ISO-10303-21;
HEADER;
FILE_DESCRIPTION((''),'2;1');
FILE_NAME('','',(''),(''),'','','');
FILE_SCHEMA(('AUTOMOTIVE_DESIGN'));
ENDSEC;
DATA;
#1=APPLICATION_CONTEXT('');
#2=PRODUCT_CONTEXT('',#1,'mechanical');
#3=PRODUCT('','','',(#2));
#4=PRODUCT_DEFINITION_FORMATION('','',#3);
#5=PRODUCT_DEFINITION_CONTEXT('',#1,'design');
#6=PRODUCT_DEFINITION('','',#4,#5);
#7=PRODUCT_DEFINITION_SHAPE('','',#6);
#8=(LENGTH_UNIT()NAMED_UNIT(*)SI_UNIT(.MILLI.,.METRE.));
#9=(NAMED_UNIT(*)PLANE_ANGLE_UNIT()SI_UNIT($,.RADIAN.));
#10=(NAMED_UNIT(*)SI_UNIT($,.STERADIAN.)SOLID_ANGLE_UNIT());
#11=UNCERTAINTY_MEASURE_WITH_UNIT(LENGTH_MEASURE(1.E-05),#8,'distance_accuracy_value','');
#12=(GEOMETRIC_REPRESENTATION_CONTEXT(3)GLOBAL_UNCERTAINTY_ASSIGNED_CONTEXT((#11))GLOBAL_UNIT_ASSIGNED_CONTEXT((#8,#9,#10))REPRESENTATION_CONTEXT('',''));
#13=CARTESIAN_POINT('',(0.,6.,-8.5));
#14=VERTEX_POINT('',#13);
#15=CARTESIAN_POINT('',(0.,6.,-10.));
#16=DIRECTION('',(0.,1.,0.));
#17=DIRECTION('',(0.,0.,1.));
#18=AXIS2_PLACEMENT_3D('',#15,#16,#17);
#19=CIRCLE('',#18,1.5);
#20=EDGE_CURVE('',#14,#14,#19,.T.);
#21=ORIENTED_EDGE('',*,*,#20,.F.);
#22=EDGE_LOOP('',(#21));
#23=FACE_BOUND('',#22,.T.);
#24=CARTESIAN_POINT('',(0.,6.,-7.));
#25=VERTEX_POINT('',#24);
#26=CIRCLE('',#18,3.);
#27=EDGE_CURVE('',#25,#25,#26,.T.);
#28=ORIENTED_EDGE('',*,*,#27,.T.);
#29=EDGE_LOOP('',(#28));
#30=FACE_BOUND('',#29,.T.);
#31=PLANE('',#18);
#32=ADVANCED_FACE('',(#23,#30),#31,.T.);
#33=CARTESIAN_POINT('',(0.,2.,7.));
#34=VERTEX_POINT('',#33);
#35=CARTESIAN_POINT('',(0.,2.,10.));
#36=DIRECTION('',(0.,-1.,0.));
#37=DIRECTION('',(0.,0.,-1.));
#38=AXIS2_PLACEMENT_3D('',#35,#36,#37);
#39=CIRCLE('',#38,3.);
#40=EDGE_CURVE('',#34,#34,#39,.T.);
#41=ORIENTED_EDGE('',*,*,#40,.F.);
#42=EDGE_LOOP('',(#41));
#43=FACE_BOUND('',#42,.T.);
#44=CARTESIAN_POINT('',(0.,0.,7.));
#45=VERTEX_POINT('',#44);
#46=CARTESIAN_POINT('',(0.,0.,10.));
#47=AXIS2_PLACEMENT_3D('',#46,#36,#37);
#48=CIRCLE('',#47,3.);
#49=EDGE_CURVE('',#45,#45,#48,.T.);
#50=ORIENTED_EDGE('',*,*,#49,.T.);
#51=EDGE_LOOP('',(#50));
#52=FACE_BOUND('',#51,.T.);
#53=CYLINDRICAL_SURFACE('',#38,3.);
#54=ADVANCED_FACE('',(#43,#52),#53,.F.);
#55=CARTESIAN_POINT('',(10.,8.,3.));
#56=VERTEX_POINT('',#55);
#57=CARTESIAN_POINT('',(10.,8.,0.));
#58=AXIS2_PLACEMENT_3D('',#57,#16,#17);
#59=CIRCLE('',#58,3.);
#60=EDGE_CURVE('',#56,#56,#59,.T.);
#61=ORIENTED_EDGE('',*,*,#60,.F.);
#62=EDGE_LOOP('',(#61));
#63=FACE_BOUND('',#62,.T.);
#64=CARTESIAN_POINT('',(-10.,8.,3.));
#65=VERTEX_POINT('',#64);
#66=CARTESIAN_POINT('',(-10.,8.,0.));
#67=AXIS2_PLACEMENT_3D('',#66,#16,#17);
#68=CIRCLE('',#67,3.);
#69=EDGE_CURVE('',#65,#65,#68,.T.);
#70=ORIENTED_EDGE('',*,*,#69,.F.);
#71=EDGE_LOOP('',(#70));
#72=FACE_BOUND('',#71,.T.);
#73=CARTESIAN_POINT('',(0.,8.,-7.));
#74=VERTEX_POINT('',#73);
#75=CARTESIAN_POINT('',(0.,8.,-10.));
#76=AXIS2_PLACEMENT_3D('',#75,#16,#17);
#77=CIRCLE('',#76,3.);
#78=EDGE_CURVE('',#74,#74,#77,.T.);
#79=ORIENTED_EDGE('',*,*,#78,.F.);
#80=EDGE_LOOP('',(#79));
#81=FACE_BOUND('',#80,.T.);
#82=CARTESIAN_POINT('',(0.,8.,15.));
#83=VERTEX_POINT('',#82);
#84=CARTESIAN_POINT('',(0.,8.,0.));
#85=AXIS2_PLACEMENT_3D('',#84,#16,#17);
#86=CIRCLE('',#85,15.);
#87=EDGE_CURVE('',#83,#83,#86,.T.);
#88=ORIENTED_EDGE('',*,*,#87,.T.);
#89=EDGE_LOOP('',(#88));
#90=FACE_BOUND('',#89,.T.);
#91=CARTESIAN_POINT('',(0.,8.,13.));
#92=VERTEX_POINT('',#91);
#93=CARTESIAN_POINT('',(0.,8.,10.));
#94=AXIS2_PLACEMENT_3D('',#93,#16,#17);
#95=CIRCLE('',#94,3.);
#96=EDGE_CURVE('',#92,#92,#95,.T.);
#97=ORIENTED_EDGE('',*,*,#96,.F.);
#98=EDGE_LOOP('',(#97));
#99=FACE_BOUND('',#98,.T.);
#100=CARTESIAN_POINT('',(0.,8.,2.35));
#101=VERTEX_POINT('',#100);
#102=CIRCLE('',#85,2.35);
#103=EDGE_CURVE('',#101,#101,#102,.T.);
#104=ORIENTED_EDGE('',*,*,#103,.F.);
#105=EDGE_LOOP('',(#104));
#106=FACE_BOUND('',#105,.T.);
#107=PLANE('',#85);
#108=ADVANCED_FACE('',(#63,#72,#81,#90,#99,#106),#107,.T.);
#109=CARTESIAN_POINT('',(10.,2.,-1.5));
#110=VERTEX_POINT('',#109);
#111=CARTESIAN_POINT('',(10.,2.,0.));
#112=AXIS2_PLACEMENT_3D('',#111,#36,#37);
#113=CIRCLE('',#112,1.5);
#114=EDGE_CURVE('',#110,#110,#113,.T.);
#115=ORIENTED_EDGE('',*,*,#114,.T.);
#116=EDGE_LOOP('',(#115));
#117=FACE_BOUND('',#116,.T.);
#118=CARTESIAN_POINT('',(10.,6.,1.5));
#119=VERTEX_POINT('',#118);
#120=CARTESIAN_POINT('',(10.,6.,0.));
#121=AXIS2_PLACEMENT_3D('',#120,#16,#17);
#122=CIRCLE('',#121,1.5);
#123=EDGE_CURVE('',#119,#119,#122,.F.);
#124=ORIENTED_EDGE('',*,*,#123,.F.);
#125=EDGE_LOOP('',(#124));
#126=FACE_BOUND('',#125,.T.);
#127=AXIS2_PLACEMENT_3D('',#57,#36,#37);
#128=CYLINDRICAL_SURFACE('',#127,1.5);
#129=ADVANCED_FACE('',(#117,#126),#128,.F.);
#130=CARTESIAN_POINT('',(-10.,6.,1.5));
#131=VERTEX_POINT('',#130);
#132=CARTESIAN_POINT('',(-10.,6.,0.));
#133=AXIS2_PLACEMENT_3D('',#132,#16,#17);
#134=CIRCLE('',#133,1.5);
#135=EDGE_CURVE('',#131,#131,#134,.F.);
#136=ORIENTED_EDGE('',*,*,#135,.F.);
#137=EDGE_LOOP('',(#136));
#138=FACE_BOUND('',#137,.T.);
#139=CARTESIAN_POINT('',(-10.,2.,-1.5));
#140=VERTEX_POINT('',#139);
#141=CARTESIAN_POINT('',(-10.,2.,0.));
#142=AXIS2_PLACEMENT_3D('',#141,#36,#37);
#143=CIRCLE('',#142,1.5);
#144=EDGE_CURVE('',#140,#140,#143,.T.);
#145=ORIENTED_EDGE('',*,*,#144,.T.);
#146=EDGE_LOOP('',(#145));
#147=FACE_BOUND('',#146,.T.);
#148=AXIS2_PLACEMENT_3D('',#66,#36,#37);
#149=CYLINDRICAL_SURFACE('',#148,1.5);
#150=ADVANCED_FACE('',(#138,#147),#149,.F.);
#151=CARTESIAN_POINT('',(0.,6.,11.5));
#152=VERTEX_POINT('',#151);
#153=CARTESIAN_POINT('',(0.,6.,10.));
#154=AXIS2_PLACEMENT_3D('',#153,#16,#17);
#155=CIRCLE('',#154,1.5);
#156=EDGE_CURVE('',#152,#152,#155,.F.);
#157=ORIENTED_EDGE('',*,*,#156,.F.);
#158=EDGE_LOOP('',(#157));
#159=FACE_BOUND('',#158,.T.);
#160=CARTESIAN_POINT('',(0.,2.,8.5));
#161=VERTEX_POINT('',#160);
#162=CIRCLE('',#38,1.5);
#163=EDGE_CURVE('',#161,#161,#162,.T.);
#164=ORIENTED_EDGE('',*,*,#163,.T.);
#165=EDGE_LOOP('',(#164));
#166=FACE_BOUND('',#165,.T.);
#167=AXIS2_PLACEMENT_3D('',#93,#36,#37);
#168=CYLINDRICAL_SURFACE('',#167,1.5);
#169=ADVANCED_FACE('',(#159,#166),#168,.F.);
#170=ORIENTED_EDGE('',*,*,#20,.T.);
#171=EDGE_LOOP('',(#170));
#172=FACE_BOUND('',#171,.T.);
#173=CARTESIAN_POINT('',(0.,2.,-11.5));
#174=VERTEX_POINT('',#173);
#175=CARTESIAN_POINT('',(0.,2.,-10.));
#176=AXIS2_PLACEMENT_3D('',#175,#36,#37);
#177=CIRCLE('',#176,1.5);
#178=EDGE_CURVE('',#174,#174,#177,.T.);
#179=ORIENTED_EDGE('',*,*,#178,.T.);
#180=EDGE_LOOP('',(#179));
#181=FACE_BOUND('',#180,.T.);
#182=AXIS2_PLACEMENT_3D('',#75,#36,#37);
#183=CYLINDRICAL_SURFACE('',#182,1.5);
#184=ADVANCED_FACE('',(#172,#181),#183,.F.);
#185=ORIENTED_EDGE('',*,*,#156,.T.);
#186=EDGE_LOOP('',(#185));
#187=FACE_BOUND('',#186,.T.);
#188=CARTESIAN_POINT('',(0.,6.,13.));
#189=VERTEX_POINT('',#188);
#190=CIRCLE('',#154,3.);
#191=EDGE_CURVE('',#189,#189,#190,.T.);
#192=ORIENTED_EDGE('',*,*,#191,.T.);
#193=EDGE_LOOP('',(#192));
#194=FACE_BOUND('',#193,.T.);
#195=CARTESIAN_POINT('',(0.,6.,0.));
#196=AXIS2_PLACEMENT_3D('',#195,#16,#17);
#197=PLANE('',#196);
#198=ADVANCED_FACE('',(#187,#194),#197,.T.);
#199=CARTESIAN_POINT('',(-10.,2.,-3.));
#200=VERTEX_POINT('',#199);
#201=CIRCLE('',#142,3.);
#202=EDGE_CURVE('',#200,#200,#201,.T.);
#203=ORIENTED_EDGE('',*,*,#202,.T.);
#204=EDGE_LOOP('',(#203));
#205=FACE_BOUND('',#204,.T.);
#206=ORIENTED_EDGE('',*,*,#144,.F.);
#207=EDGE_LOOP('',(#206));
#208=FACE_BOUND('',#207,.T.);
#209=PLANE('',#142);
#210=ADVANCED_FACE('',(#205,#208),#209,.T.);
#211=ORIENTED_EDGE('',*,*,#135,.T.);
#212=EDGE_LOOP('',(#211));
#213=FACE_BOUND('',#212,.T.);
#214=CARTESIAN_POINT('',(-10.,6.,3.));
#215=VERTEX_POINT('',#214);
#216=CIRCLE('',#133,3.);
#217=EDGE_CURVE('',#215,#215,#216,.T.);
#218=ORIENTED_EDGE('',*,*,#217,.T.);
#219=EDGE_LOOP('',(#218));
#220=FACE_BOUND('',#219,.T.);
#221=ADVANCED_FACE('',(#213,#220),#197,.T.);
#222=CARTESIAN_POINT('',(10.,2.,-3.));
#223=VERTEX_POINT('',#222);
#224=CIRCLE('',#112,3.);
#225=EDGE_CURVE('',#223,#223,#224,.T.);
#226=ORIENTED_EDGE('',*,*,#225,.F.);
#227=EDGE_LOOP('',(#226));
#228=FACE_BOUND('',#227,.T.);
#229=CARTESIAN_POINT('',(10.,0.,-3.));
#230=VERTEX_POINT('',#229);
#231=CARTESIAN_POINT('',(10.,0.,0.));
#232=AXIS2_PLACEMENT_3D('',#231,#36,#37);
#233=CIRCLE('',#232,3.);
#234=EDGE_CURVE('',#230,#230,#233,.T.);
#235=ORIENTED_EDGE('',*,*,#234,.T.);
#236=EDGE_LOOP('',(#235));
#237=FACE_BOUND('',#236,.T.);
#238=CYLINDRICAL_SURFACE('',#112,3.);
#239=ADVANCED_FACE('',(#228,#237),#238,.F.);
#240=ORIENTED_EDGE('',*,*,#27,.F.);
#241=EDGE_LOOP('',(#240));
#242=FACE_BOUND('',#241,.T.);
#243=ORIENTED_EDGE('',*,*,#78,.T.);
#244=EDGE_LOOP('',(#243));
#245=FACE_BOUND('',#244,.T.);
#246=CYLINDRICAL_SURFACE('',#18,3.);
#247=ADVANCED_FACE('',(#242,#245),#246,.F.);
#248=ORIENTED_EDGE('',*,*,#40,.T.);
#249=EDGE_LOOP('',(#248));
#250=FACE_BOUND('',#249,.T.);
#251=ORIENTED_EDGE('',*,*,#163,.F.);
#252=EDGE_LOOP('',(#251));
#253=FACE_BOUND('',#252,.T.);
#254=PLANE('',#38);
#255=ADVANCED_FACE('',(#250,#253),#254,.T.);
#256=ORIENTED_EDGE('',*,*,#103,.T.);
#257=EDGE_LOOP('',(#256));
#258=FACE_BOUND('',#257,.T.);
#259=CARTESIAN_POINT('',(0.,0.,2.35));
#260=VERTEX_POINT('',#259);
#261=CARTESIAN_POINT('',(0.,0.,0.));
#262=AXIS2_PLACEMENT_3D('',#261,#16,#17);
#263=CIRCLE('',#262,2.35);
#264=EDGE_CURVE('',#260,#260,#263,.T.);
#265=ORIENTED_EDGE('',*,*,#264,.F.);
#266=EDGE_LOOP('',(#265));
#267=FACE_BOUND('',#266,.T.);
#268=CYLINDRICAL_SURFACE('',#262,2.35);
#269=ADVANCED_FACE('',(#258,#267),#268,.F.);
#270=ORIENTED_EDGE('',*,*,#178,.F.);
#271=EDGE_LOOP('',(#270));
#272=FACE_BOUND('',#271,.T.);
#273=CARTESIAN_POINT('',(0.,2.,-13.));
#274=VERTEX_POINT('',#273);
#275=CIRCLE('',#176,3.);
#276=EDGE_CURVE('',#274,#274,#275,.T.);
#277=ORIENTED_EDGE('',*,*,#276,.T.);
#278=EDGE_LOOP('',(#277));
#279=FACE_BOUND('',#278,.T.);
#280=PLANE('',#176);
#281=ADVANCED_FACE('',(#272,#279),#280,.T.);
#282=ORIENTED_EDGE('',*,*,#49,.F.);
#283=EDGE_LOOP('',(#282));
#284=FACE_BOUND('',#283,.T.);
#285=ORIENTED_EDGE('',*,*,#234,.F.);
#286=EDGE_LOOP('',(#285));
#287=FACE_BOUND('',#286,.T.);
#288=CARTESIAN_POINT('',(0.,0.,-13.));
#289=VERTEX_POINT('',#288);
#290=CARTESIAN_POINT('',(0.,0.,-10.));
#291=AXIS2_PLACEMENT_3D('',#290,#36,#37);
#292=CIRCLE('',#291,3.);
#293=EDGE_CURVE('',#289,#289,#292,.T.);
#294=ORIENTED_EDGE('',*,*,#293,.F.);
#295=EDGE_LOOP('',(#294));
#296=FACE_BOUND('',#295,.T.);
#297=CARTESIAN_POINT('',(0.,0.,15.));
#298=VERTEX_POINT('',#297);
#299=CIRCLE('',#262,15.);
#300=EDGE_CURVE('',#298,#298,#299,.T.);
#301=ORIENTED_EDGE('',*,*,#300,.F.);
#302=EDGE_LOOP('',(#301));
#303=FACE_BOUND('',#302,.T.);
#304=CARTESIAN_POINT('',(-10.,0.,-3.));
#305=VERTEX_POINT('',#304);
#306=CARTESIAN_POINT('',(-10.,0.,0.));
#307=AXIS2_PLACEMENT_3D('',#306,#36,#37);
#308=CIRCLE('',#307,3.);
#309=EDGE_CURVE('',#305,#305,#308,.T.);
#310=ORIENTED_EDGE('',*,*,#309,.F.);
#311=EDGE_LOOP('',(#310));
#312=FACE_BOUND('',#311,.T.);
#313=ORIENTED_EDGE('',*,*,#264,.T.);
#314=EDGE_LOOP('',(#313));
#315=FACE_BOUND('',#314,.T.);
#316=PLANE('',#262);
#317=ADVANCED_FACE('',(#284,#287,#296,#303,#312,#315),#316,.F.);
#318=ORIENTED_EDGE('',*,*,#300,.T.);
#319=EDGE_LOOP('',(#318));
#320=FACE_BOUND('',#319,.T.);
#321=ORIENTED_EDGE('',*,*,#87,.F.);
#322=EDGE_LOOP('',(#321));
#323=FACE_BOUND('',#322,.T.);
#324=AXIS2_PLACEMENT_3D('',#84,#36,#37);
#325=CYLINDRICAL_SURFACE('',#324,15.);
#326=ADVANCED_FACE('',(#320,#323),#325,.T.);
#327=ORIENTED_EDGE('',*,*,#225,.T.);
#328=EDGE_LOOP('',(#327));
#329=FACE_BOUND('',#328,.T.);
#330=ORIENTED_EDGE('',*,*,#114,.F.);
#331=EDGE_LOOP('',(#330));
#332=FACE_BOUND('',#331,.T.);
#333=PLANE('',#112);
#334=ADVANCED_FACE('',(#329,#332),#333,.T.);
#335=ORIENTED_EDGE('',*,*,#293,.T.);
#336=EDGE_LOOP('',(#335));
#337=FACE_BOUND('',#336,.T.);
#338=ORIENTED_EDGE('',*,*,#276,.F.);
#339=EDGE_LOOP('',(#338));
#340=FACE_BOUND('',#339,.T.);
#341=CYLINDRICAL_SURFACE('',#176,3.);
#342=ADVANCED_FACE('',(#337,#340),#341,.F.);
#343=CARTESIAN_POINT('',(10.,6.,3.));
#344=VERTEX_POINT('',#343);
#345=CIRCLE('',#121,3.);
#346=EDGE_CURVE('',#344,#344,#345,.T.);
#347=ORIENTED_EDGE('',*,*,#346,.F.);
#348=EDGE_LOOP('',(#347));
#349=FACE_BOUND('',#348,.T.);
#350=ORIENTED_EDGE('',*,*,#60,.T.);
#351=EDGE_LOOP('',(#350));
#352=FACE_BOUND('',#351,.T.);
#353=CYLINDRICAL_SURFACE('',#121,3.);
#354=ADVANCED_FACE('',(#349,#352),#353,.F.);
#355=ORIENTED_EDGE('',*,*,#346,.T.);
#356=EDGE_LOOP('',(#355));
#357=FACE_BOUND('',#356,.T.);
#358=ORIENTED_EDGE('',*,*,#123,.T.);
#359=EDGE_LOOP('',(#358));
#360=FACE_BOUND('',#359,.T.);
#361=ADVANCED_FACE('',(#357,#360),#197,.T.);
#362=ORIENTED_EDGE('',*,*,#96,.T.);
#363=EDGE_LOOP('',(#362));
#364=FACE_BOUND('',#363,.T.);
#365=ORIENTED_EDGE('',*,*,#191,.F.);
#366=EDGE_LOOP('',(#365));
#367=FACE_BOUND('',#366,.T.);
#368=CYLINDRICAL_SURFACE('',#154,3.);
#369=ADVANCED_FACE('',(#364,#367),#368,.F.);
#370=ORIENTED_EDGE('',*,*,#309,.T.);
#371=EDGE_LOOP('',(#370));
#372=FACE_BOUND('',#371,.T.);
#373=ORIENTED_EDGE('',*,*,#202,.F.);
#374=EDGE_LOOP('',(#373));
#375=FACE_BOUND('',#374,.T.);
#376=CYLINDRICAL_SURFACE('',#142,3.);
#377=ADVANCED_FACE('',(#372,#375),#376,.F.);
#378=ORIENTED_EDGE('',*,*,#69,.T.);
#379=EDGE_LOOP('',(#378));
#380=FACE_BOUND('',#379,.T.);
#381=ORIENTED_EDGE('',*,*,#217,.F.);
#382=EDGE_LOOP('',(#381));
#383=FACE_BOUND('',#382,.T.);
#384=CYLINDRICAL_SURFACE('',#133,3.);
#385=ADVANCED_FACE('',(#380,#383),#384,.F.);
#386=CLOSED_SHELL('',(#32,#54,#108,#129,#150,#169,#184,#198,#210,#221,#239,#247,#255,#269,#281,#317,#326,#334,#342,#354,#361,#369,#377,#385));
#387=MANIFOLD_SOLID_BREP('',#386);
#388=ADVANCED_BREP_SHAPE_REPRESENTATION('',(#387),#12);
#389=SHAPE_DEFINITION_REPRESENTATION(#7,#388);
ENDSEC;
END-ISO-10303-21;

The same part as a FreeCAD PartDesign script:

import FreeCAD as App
import Part
import Sketcher
from FreeCAD import Vector

doc = App.newDocument("Part")
body = doc.addObject("PartDesign::Body", "Body")

# Sketch on XZ plane
sketch1 = doc.addObject("Sketcher::SketchObject", "Sketch")
body.addObject(sketch1)
sketch1.AttachmentSupport = (doc.XZ_Plane, [""])
sketch1.MapMode = "FlatFace"
sketch1.addGeometry([
    Part.Circle(Vector(0, 0, 0), Vector(0, 0, 1), 15),  # 0
    Part.Circle(Vector(0, -10, 0), Vector(0, 0, 1), 1.5),  # 1
    Part.Circle(Vector(-10, 0, 0), Vector(0, 0, 1), 1.5),  # 2
    Part.Circle(Vector(10, 0, 0), Vector(0, 0, 1), 1.5),  # 3
    Part.Circle(Vector(0, 10, 0), Vector(0, 0, 1), 1.5),  # 4
], False)
sketch1.addConstraint([
    Sketcher.Constraint("Coincident", 0, 3, -1, 1),
    Sketcher.Constraint("Equal", 1, 2),
    Sketcher.Constraint("Equal", 2, 3),
    Sketcher.Constraint("Equal", 3, 4),
    Sketcher.Constraint("Symmetric", 2, 3, 3, 3, -1, 1),
    Sketcher.Constraint("Symmetric", 1, 3, 4, 3, -1, 1),
    Sketcher.Constraint("PointOnObject", 1, 3, -2),
    Sketcher.Constraint("PointOnObject", 2, 3, -1),
    Sketcher.Constraint("Diameter", 0, 30.0),
    Sketcher.Constraint("Diameter", 1, 3.0),
    Sketcher.Constraint("DistanceY", 1, 3, -1, 1, 10.0),
    Sketcher.Constraint("DistanceX", 2, 3, -1, 1, 10.0),
])
pad1 = doc.addObject("PartDesign::Pad", "Pad")
body.addObject(pad1)
pad1.Profile = sketch1
pad1.Length = 8
pad1.Reversed = True

# Sketch on XZ plane
sketch2 = doc.addObject("Sketcher::SketchObject", "Sketch001")
body.addObject(sketch2)
sketch2.AttachmentSupport = (doc.XZ_Plane, [""])
sketch2.MapMode = "FlatFace"
sketch2.AttachmentOffset = App.Placement(Vector(0, 0, -8), App.Rotation())
sketch2.addGeometry(Part.Circle(Vector(0, 0, 0), Vector(0, 0, 1), 2.35), False)
sketch2.addConstraint([
    Sketcher.Constraint("Coincident", 0, 3, -1, 1),
    Sketcher.Constraint("Diameter", 0, 4.7),
])
pocket1 = doc.addObject("PartDesign::Pocket", "Pocket")
body.addObject(pocket1)
pocket1.Profile = sketch2
pocket1.Type = "ThroughAll"
pocket1.Reversed = True

# Sketch on XZ plane
sketch3 = doc.addObject("Sketcher::SketchObject", "Sketch002")
body.addObject(sketch3)
sketch3.AttachmentSupport = (doc.XZ_Plane, [""])
sketch3.MapMode = "FlatFace"
sketch3.AttachmentOffset = App.Placement(Vector(0, 0, -6), App.Rotation())
sketch3.addGeometry([
    Part.Circle(Vector(-10, 0, 0), Vector(0, 0, 1), 3),  # 0
    Part.Circle(Vector(-10, 0, 0), Vector(0, 0, 1), 1.5),  # 1
    Part.Circle(Vector(0, 10, 0), Vector(0, 0, 1), 3),  # 2
    Part.Circle(Vector(0, 10, 0), Vector(0, 0, 1), 1.5),  # 3
    Part.Circle(Vector(10, 0, 0), Vector(0, 0, 1), 3),  # 4
    Part.Circle(Vector(10, 0, 0), Vector(0, 0, 1), 1.5),  # 5
    Part.Circle(Vector(0, -10, 0), Vector(0, 0, 1), 3),  # 6
], False)
sketch3.addConstraint([
    Sketcher.Constraint("Coincident", 1, 3, 0, 3),
    Sketcher.Constraint("Coincident", 3, 3, 2, 3),
    Sketcher.Constraint("Coincident", 5, 3, 4, 3),
    Sketcher.Constraint("Equal", 0, 2),
    Sketcher.Constraint("Equal", 1, 3),
    Sketcher.Constraint("Equal", 2, 4),
    Sketcher.Constraint("Equal", 3, 5),
    Sketcher.Constraint("Equal", 4, 6),
    Sketcher.Constraint("Symmetric", 0, 3, 4, 3, -1, 1),
    Sketcher.Constraint("Symmetric", 2, 3, 6, 3, -1, 1),
    Sketcher.Constraint("PointOnObject", 0, 3, -1),
    Sketcher.Constraint("PointOnObject", 2, 3, -2),
    Sketcher.Constraint("Diameter", 0, 6.0),
    Sketcher.Constraint("Diameter", 1, 3.0),
    Sketcher.Constraint("DistanceX", 0, 3, -1, 1, 10.0),
    Sketcher.Constraint("DistanceY", -1, 1, 2, 3, 10.0),
])
pocket2 = doc.addObject("PartDesign::Pocket", "Pocket001")
body.addObject(pocket2)
pocket2.Profile = sketch3
pocket2.Length = 2

# Sketch on XZ plane
sketch4 = doc.addObject("Sketcher::SketchObject", "Sketch003")
body.addObject(sketch4)
sketch4.AttachmentSupport = (doc.XZ_Plane, [""])
sketch4.MapMode = "FlatFace"
sketch4.addGeometry([
    Part.Circle(Vector(0, 10, 0), Vector(0, 0, 1), 3),
    Part.Circle(Vector(10, 0, 0), Vector(0, 0, 1), 3),
    Part.Circle(Vector(0, -10, 0), Vector(0, 0, 1), 3),
    Part.Circle(Vector(-10, 0, 0), Vector(0, 0, 1), 3),
], False)
sketch4.addConstraint([
    Sketcher.Constraint("Equal", 0, 1),
    Sketcher.Constraint("Equal", 1, 2),
    Sketcher.Constraint("Equal", 2, 3),
    Sketcher.Constraint("Symmetric", 0, 3, 2, 3, -1, 1),
    Sketcher.Constraint("Symmetric", 1, 3, 3, 3, -1, 1),
    Sketcher.Constraint("PointOnObject", 0, 3, -2),
    Sketcher.Constraint("PointOnObject", 1, 3, -1),
    Sketcher.Constraint("Diameter", 0, 6.0),
    Sketcher.Constraint("DistanceY", -1, 1, 0, 3, 10.0),
    Sketcher.Constraint("DistanceX", -1, 1, 1, 3, 10.0),
])
pocket3 = doc.addObject("PartDesign::Pocket", "Pocket002")
body.addObject(pocket3)
pocket3.Profile = sketch4
pocket3.Length = 2

doc.recompute()
